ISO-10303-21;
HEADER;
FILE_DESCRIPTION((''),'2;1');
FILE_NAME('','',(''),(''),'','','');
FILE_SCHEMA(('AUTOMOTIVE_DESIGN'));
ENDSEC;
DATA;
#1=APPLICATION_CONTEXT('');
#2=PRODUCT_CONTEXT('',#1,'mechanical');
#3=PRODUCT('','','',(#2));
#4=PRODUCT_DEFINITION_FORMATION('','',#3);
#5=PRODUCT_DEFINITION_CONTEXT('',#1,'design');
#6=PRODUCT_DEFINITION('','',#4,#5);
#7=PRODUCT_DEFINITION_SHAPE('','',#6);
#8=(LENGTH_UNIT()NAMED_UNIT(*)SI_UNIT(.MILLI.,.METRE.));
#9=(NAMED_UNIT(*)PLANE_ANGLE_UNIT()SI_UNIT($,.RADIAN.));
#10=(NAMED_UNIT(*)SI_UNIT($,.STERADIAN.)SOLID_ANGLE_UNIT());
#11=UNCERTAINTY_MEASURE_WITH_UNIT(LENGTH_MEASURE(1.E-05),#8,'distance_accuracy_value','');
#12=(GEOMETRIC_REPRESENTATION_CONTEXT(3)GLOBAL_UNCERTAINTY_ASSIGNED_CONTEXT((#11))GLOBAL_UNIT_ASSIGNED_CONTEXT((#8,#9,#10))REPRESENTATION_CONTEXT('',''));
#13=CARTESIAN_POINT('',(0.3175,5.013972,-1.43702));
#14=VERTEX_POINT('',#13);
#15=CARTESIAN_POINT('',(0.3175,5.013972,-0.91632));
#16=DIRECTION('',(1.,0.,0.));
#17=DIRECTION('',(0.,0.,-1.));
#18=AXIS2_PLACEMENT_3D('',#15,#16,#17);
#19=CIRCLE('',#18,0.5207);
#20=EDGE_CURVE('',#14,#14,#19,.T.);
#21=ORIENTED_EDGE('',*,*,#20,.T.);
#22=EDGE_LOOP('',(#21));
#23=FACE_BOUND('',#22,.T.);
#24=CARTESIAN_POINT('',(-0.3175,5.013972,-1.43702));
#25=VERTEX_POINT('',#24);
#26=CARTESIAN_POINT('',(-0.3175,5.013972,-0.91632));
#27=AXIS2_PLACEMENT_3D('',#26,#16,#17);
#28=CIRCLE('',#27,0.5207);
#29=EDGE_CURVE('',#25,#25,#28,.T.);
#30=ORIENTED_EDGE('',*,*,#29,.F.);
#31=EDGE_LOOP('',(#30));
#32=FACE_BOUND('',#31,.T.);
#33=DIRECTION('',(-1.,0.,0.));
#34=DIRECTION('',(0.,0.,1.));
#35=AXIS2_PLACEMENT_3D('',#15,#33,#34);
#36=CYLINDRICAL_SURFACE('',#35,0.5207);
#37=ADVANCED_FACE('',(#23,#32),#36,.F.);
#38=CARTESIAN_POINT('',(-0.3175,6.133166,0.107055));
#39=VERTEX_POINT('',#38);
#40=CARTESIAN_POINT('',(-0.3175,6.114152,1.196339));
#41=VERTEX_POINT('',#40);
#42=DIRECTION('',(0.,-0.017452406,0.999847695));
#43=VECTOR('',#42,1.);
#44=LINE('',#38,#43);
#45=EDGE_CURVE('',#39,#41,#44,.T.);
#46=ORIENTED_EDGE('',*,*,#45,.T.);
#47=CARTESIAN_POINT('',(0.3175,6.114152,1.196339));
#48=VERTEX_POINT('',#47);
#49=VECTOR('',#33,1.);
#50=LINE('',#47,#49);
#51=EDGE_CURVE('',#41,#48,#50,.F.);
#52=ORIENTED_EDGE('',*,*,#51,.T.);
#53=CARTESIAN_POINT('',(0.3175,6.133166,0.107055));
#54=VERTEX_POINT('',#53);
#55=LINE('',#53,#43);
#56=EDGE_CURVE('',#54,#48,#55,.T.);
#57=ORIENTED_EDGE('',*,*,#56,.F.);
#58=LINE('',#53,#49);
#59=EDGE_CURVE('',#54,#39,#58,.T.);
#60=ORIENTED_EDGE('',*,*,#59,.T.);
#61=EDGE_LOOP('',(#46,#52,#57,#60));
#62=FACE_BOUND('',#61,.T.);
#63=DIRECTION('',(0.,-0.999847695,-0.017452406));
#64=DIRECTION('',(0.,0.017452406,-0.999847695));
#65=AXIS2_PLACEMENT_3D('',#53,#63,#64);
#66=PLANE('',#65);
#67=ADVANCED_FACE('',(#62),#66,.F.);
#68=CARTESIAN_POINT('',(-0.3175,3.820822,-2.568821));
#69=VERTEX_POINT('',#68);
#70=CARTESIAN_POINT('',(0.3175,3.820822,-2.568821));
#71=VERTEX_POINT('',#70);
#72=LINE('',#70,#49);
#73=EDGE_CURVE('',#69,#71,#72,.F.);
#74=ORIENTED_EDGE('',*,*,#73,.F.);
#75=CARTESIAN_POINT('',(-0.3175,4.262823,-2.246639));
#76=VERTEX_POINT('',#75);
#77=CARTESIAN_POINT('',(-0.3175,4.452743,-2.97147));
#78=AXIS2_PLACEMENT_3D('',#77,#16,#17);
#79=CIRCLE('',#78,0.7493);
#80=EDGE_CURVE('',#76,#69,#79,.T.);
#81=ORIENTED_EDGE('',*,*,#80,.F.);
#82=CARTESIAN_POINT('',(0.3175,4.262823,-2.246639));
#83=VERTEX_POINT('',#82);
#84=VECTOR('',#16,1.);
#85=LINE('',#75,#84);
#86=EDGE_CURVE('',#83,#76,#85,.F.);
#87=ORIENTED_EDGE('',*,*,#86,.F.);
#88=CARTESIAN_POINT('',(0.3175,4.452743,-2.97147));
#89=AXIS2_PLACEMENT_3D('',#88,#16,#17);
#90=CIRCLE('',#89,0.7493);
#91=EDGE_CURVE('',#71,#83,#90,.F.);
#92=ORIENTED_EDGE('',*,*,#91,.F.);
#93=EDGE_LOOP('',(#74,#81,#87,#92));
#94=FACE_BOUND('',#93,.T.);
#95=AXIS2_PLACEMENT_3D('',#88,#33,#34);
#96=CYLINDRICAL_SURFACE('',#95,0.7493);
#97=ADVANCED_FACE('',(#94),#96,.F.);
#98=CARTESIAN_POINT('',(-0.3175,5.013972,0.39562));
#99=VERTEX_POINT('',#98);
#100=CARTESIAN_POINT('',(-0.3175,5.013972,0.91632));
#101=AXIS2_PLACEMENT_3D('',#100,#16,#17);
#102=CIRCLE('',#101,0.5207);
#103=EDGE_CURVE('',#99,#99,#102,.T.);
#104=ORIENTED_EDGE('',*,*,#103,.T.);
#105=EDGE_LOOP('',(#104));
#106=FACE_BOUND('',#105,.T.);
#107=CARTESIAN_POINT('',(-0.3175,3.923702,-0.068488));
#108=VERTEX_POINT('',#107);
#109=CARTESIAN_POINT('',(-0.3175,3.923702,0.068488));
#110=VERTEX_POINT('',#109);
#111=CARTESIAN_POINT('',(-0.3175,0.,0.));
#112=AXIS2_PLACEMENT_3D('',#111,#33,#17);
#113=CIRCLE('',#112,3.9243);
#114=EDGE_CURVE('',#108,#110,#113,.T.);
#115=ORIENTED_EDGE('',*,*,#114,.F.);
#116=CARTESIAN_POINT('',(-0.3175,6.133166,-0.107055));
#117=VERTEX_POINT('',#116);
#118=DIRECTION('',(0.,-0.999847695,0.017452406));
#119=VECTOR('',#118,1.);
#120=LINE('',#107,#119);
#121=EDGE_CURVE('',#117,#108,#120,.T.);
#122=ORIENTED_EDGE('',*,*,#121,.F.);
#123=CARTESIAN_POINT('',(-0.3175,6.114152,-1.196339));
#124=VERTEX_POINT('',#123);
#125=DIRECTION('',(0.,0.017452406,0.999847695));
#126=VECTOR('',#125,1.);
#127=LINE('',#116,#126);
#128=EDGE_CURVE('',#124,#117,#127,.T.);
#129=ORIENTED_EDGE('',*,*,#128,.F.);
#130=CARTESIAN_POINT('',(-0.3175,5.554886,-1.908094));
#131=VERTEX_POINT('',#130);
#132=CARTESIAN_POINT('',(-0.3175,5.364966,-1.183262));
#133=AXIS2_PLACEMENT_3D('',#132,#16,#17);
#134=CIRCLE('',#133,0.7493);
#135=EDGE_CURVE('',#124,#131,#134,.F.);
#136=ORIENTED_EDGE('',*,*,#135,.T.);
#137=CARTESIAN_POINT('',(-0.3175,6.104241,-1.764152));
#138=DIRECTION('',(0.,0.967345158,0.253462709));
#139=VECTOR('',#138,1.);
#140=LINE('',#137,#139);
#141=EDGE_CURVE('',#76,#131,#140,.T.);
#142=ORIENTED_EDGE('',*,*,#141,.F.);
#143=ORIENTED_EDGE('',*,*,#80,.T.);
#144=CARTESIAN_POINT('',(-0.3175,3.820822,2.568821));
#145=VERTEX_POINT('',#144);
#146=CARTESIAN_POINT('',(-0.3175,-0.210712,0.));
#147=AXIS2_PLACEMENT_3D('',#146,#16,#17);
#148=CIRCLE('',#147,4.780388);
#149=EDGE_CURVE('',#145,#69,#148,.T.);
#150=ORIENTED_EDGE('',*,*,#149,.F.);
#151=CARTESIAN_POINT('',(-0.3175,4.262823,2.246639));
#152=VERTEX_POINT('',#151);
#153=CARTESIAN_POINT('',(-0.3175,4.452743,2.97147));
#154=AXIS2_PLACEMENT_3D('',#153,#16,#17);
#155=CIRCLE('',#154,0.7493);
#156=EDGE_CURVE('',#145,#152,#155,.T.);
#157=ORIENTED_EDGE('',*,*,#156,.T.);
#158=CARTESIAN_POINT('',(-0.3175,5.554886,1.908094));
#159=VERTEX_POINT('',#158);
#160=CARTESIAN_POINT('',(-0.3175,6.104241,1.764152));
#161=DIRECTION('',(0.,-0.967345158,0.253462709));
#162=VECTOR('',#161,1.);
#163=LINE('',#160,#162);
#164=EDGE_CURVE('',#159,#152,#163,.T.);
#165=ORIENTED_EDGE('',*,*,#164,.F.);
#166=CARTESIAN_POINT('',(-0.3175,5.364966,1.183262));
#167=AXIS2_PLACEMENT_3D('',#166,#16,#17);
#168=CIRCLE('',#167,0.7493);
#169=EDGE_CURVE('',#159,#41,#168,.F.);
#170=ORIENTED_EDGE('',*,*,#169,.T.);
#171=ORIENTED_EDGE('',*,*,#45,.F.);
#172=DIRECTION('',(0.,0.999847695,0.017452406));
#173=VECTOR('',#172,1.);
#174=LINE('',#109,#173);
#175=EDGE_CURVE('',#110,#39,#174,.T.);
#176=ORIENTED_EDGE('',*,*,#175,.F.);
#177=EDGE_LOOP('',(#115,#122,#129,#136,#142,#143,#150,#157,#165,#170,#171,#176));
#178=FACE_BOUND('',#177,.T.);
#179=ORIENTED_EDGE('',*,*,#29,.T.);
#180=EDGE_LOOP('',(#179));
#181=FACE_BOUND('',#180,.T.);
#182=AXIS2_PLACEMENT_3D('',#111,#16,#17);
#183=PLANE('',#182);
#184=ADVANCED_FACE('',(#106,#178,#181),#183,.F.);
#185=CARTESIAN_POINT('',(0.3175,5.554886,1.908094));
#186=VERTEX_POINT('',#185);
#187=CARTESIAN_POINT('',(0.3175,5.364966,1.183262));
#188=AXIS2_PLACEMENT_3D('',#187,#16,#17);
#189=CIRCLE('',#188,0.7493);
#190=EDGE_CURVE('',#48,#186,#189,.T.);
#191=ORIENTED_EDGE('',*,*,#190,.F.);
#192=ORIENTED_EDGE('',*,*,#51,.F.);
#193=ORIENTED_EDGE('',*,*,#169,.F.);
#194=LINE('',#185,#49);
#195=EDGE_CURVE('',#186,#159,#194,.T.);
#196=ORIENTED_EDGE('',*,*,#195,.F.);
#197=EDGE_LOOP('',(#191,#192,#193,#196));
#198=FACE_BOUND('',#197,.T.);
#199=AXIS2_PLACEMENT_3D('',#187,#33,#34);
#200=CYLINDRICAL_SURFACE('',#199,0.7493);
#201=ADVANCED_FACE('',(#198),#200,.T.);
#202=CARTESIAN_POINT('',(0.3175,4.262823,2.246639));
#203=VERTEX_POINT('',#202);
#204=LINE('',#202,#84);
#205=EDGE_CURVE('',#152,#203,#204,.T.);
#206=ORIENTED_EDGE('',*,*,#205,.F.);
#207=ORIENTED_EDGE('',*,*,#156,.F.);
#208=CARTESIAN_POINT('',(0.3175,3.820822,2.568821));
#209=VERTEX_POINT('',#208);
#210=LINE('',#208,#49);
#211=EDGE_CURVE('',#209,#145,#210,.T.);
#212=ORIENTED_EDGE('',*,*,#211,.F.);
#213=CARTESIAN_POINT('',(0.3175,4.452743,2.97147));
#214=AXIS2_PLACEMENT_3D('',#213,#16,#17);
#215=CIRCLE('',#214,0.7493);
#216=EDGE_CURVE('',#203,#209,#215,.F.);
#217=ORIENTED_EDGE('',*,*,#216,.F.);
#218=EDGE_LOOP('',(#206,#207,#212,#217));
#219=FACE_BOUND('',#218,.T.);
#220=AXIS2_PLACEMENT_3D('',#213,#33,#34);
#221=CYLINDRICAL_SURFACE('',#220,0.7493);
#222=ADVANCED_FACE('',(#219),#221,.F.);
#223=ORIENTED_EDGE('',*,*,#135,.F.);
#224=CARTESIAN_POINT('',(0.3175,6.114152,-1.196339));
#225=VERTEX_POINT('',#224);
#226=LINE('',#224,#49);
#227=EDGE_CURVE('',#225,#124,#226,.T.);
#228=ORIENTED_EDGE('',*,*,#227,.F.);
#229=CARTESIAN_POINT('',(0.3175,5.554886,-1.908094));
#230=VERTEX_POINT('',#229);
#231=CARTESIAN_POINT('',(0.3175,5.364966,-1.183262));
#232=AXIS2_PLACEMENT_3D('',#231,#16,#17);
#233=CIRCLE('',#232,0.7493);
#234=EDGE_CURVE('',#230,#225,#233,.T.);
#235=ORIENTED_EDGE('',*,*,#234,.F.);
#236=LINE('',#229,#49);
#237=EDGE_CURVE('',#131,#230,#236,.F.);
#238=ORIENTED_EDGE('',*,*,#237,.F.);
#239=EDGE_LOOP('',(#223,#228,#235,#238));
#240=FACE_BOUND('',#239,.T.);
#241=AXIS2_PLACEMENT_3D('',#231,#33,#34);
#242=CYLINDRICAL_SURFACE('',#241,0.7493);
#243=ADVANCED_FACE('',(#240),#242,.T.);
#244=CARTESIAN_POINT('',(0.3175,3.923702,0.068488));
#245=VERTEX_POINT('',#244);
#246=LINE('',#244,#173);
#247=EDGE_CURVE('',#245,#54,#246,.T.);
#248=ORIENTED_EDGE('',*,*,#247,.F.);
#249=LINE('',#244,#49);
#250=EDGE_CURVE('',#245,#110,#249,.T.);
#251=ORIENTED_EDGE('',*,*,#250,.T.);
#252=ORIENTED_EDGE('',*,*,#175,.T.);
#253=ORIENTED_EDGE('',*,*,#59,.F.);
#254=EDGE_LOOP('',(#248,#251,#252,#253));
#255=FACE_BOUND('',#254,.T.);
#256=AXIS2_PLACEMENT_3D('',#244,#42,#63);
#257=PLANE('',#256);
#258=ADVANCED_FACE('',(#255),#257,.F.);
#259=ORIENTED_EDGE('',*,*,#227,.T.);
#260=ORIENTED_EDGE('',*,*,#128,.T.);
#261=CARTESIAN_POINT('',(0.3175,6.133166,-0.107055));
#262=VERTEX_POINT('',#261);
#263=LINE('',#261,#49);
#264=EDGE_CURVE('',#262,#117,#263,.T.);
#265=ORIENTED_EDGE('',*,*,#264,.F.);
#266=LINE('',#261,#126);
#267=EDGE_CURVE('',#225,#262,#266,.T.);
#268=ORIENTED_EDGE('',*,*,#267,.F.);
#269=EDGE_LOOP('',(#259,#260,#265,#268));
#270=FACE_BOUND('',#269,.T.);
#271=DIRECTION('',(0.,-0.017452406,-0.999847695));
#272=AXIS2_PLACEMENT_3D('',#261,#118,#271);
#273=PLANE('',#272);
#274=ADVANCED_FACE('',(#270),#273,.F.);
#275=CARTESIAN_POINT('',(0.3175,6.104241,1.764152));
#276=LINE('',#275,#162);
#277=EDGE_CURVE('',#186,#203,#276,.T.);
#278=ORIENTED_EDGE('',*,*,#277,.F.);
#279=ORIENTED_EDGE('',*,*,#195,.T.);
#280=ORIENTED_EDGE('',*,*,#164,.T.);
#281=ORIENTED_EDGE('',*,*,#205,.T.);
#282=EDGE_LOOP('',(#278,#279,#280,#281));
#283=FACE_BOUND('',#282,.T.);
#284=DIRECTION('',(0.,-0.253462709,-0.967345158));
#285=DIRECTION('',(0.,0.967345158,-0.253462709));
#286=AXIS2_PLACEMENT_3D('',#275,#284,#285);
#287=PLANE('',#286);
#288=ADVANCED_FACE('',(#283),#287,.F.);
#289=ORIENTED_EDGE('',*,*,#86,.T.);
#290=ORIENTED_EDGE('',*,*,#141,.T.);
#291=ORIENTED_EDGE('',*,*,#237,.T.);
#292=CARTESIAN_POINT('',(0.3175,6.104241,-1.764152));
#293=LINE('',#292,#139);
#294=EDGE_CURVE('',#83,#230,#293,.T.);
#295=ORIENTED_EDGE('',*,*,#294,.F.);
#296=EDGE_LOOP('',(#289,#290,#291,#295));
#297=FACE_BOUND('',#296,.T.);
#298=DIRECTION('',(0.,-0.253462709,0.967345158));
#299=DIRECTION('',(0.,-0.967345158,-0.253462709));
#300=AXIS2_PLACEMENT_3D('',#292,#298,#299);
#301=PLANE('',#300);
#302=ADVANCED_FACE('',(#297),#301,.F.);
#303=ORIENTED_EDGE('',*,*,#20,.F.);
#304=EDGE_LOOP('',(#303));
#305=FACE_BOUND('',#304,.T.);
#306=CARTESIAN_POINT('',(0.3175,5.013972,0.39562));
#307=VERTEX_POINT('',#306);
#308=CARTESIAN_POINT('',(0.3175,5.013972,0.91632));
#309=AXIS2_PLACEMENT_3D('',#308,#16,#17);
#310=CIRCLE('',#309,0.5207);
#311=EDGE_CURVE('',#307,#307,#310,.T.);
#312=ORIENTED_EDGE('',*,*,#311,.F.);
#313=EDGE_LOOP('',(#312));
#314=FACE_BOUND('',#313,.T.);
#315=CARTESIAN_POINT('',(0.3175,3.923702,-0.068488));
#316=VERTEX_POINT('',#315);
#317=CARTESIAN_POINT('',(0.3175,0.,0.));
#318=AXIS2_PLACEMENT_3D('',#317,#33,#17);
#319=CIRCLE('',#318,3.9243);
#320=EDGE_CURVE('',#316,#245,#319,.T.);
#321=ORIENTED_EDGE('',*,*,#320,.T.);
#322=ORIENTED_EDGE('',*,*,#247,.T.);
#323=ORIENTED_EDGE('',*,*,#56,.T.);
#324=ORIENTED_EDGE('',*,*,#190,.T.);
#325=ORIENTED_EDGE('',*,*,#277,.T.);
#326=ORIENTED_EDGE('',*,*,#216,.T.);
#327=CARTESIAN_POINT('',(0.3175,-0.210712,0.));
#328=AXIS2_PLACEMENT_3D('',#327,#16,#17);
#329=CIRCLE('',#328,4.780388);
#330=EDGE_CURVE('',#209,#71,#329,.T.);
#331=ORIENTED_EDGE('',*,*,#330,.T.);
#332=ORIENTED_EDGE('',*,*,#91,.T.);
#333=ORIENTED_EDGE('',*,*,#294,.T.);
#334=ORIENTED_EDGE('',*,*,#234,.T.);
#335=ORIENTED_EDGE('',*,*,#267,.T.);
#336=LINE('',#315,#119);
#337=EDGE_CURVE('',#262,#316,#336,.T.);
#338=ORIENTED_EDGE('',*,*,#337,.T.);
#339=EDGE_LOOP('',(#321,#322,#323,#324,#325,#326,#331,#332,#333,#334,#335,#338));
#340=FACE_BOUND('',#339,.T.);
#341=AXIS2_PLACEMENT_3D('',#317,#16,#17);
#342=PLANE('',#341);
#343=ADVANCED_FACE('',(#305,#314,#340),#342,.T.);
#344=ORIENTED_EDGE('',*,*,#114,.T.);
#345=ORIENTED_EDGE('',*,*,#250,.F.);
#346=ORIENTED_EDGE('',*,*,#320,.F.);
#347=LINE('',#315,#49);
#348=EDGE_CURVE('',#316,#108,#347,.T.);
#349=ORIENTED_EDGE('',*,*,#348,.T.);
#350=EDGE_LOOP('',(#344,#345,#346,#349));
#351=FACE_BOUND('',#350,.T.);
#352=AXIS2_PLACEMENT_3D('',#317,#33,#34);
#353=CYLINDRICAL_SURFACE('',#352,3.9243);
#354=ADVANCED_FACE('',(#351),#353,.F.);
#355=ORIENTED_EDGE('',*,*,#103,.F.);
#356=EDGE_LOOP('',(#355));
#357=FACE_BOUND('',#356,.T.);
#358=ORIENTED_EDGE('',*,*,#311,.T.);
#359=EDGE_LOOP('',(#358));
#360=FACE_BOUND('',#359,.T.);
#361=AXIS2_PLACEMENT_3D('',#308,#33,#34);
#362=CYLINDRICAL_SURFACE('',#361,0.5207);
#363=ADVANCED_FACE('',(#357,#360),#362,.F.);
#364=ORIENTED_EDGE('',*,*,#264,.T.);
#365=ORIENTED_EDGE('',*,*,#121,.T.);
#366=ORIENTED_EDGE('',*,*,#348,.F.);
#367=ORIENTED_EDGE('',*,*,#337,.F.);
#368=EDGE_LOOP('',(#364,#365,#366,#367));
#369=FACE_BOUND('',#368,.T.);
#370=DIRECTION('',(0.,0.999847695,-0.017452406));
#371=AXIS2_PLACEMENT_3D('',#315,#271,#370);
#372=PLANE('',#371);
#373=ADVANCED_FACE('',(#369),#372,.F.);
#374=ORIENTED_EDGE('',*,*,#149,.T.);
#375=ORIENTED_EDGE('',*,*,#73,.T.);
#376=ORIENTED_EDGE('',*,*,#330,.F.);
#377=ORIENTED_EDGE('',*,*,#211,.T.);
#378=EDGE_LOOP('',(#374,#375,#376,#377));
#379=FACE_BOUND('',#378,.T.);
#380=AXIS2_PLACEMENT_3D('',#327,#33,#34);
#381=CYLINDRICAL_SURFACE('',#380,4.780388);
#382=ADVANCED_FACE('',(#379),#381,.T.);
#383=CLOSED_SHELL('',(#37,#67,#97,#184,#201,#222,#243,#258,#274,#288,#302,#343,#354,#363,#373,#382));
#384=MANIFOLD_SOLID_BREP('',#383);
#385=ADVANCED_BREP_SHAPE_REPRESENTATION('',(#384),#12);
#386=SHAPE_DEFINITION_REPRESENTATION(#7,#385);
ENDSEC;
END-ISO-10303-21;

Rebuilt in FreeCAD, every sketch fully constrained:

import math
import FreeCAD as App
import Part
import Sketcher
from FreeCAD import Vector
Q = App.Units.Quantity


def edges_at(feature, points):
    """Names of the edges that pass closest to the given points."""
    edges = feature.Shape.Edges
    near = lambda p: min(range(len(edges)), key=lambda i: edges[i].distToShape(Part.Vertex(*p))[0])
    return sorted({f"Edge{near(p) + 1}" for p in points})

doc = App.newDocument("Part")
body = doc.addObject("PartDesign::Body", "Body")

# Sketch on YZ plane
sketch1 = doc.addObject("Sketcher::SketchObject", "Sketch")
body.addObject(sketch1)
sketch1.AttachmentSupport = (doc.YZ_Plane, [""])
sketch1.MapMode = "FlatFace"
sketch1.addGeometry([
    Part.LineSegment(Vector(3.92, 0.07, 0), Vector(6.13, 0.11, 0)),  # 0
    Part.LineSegment(Vector(6.13, 0.11, 0), Vector(6.1, 1.76, 0)),  # 1
    Part.LineSegment(Vector(6.1, 1.76, 0), Vector(3.97, 2.32, 0)),  # 2
    Part.ArcOfCircle(Part.Circle(Vector(-0.21, 0, 0), Vector(0, 0, 1), 4.78), math.radians(29), math.radians(331)),  # 3
    Part.LineSegment(Vector(3.97, -2.32, 0), Vector(6.1, -1.76, 0)),  # 4
    Part.LineSegment(Vector(6.1, -1.76, 0), Vector(6.13, -0.11, 0)),  # 5
    Part.LineSegment(Vector(6.13, -0.11, 0), Vector(3.92, -0.07, 0)),  # 6
    Part.ArcOfCircle(Part.Circle(Vector(0, 0, 0), Vector(0, 0, 1), 3.92), math.radians(1), math.radians(359)),  # 7
    Part.Circle(Vector(5.01, 0.92, 0), Vector(0, 0, 1), 0.52),  # 8
    Part.Circle(Vector(5.01, -0.92, 0), Vector(0, 0, 1), 0.52),  # 9
], False)
sketch1.addConstraint([
    Sketcher.Constraint("Coincident", 0, 2, 1, 1),
    Sketcher.Constraint("Coincident", 1, 2, 2, 1),
    Sketcher.Constraint("Coincident", 2, 2, 3, 1),
    Sketcher.Constraint("Coincident", 3, 2, 4, 1),
    Sketcher.Constraint("Coincident", 4, 2, 5, 1),
    Sketcher.Constraint("Coincident", 5, 2, 6, 1),
    Sketcher.Constraint("Coincident", 6, 2, 7, 2),
    Sketcher.Constraint("Coincident", 7, 1, 0, 1),
    Sketcher.Constraint("Coincident", 7, 3, -1, 1),
    Sketcher.Constraint("Equal", 8, 9),
    Sketcher.Constraint("Symmetric", 8, 3, 9, 3, -1),
    Sketcher.Constraint("Symmetric", 2, 2, 3, 2, -1),
    Sketcher.Constraint("Symmetric", 1, 2, 4, 2, -1),
    Sketcher.Constraint("Symmetric", 0, 2, 5, 2, -1),
    Sketcher.Constraint("Perpendicular", 0, 1),
    Sketcher.Constraint("Perpendicular", 5, 6),
    Sketcher.Constraint("Equal", 0, 2),
    Sketcher.Constraint("Diameter", 8, Q("0.041 in")),
    Sketcher.Constraint("Angle", 0, Q("1 deg")),
    Sketcher.Constraint("Radius", 7, Q("0.1545 in")),
    Sketcher.Constraint("Distance", 0, Q("0.087 in")),
    Sketcher.Constraint("Radius", 3, Q("4.780388 mm")),
    Sketcher.Constraint("DistanceX", -1, 1, 2, 2, Q("3.966602 mm")),
    Sketcher.Constraint("DistanceY", 1, 2, 2, 2, Q("0.560102 mm")),
    Sketcher.Constraint("DistanceY", 0, 2, 2, 2, Q("2.217199 mm")),
    Sketcher.Constraint("DistanceX", -1, 1, 8, 3, Q("5.013972 mm")),
    Sketcher.Constraint("DistanceY", -1, 1, 8, 3, Q("0.91632 mm")),
])
pad1 = doc.addObject("PartDesign::Pad", "Pad")
body.addObject(pad1)
pad1.Profile = sketch1
pad1.Length = Q("0.025 in")
pad1.Midplane = True
doc.recompute()

fillet = doc.addObject("PartDesign::Fillet", "Fillet")
body.addObject(fillet)
fillet.Base = (pad1, edges_at(pad1, [
    (0, 6.104, -1.764),
    (0, 3.967, -2.324),
    (0, 3.967, 2.324),
    (0, 6.104, 1.764),
]))
fillet.Radius = Q("0.0295 in")

doc.recompute()
